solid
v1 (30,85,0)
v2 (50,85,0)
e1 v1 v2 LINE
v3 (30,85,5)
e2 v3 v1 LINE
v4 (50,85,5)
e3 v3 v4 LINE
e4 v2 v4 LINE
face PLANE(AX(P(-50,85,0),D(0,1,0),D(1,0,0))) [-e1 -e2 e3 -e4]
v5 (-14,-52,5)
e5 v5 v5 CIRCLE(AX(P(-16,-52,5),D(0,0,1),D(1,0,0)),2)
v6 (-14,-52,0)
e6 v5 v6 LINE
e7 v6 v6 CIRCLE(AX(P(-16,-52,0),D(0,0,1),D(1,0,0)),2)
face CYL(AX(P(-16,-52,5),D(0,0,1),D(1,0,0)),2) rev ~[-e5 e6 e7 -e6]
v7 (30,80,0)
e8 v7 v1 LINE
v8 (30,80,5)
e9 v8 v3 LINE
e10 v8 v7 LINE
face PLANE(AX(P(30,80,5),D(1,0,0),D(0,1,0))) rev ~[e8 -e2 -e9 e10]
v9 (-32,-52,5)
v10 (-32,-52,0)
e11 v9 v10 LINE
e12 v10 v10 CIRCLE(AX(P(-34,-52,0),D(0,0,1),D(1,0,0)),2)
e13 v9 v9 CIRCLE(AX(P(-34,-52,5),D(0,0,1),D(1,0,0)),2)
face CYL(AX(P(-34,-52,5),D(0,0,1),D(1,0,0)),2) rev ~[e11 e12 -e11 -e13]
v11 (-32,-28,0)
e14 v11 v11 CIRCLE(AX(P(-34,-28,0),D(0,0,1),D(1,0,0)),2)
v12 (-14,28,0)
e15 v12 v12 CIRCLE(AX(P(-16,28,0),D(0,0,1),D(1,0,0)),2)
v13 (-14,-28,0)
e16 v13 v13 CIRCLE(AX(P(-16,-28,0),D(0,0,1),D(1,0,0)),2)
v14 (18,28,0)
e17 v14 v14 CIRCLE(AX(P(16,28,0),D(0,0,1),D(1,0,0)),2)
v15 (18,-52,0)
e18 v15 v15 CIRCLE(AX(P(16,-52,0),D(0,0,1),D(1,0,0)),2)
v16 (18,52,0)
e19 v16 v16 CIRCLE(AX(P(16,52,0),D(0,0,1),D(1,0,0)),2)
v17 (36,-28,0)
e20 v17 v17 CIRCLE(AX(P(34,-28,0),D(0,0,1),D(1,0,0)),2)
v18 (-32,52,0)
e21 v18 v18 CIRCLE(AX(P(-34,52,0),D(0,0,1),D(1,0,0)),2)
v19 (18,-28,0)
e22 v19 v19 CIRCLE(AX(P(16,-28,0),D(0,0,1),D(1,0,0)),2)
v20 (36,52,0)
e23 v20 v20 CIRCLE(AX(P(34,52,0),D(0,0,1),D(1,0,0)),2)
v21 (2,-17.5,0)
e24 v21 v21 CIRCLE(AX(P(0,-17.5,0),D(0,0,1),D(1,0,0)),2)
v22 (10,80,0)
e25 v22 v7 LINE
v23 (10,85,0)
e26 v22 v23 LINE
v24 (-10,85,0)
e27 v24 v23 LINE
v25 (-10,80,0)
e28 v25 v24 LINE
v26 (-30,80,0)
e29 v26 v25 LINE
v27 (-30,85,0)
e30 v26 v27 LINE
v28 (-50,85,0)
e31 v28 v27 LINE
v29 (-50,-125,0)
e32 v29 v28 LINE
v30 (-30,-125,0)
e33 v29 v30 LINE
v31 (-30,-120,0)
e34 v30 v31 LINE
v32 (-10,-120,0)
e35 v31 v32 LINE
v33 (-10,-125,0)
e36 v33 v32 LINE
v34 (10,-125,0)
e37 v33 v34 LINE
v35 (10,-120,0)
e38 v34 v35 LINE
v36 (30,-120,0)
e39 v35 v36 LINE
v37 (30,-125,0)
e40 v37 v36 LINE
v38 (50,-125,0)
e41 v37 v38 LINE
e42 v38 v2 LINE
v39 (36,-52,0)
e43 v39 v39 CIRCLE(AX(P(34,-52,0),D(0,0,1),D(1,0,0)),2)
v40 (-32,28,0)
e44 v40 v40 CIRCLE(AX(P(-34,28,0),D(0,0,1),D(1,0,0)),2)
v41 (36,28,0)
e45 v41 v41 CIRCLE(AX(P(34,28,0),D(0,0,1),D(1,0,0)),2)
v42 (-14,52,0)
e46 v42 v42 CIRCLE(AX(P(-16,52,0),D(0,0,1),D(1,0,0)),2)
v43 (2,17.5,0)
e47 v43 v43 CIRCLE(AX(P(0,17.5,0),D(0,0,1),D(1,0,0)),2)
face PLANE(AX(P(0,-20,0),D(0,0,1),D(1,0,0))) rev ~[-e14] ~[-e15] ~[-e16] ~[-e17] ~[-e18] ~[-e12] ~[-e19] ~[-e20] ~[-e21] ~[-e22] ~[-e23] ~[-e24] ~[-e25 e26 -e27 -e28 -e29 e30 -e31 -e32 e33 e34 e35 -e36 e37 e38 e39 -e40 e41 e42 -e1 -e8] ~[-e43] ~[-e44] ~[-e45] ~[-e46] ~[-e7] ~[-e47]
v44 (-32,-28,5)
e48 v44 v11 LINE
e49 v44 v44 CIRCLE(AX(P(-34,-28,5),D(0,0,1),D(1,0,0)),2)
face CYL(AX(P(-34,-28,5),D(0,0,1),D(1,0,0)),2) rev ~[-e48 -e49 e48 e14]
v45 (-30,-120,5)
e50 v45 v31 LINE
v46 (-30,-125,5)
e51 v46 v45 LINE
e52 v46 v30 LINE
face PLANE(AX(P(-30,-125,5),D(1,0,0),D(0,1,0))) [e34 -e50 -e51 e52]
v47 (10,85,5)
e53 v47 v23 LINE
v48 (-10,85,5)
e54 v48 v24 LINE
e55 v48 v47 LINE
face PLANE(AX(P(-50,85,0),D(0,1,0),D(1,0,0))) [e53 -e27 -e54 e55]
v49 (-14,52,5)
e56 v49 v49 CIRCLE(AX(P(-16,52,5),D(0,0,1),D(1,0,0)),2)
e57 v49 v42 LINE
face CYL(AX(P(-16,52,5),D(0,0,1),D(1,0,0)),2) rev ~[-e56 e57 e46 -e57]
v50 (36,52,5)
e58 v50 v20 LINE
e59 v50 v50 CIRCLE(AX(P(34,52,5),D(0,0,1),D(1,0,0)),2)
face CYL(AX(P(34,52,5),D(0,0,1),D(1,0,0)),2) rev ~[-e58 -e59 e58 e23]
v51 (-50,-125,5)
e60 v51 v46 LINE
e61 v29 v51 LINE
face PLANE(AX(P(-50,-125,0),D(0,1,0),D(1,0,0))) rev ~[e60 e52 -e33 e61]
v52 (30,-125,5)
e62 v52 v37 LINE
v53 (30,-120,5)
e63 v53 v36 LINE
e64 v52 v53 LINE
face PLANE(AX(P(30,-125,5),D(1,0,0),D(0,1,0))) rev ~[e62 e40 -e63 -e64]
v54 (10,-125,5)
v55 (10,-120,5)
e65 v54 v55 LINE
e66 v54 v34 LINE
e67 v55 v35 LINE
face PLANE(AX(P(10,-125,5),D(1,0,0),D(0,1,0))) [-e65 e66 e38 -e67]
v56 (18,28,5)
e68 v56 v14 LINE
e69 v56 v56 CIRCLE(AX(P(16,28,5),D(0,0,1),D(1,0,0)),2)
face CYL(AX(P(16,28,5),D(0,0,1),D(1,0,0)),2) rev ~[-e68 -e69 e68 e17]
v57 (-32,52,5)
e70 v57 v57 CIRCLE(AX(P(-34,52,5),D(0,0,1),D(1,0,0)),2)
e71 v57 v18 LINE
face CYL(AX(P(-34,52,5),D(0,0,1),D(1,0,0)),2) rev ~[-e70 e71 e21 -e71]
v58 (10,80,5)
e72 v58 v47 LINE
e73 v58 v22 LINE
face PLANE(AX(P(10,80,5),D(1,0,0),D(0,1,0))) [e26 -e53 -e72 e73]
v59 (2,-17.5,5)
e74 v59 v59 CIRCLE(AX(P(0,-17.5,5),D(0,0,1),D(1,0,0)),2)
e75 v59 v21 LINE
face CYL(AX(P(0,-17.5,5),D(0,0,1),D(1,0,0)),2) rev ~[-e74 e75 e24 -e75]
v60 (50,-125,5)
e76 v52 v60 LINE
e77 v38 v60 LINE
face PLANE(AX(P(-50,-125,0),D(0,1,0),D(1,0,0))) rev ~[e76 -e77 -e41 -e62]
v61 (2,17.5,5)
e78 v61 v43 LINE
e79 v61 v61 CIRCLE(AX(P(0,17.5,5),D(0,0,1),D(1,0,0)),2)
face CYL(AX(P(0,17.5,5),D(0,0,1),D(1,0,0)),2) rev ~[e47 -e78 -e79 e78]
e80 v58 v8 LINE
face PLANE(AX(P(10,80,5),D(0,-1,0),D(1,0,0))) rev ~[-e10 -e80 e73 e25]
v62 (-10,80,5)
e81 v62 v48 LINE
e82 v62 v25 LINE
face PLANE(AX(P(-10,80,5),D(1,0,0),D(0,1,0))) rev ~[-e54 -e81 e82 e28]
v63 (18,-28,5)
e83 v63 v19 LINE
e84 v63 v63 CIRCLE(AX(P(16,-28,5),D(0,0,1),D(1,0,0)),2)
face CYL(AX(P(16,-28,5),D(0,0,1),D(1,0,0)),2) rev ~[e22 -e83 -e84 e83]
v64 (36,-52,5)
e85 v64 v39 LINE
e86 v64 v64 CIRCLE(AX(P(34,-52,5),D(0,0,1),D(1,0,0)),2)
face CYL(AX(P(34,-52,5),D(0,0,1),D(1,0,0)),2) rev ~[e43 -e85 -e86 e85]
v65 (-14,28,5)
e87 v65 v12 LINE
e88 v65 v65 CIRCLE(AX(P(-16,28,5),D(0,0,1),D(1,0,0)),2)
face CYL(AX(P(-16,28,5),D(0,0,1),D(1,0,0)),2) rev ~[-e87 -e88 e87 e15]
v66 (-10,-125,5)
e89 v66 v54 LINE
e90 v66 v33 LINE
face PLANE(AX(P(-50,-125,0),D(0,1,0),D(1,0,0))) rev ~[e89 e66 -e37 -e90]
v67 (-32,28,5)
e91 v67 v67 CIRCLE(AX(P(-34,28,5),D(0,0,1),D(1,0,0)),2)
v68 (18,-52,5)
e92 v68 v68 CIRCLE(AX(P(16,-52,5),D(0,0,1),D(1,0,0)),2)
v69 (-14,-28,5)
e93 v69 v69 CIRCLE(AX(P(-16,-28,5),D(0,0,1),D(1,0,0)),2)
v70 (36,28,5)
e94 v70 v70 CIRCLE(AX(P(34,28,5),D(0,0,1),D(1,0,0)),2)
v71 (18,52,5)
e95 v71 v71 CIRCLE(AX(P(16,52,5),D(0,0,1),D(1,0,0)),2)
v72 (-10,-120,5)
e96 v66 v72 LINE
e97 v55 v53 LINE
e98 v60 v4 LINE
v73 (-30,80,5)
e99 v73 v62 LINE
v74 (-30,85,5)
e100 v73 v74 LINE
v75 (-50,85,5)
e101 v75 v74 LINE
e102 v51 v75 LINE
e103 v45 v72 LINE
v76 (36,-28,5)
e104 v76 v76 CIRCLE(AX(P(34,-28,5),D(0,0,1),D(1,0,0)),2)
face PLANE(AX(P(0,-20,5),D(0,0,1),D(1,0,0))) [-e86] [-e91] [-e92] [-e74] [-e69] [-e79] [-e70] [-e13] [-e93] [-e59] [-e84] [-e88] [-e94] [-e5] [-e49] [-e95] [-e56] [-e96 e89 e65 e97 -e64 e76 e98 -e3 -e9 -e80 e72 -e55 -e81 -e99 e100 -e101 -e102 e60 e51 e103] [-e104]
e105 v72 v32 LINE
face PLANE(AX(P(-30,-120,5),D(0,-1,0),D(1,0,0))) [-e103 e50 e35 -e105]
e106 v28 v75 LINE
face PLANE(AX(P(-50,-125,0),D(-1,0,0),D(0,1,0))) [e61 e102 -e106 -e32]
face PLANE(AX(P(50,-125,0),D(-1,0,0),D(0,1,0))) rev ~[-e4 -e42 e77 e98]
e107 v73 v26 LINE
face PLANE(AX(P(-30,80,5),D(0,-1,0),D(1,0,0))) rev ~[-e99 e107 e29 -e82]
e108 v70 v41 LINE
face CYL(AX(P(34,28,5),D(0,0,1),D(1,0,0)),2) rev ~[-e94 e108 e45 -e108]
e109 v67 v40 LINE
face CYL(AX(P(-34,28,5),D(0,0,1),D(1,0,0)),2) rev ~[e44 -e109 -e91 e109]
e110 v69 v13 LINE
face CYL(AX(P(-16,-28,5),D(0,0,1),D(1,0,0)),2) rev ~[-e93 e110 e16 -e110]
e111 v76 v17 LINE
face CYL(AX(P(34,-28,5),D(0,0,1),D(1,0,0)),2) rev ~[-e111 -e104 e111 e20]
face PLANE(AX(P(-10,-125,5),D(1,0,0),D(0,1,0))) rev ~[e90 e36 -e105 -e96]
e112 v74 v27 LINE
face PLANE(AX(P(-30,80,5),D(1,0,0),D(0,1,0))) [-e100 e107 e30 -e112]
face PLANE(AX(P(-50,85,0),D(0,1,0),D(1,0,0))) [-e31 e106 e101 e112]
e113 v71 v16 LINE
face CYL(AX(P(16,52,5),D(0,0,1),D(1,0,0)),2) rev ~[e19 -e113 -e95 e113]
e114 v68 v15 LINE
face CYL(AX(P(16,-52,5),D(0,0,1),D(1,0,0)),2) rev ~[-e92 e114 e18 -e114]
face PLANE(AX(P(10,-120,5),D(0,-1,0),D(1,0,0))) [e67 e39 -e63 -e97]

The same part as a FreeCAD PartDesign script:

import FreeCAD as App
import Part
import Sketcher
Q = App.Units.Quantity

doc = App.newDocument("Part")
body = doc.addObject("PartDesign::Body", "Body")

sketch1 = body.newObject("Sketcher::SketchObject", "Sketch")
sketch1.AttachmentSupport = (doc.getObject("XY_Plane"), [""])
sketch1.MapMode = "FlatFace"
sketch1.addGeometry(Part.LineSegment(App.Vector(-50, 85, 0), App.Vector(-50, -125, 0)), False)
sketch1.addGeometry(Part.LineSegment(App.Vector(-50, -125, 0), App.Vector(50, -125, 0)), False)
sketch1.addGeometry(Part.LineSegment(App.Vector(50, -125, 0), App.Vector(50, 85, 0)), False)
sketch1.addGeometry(Part.LineSegment(App.Vector(50, 85, 0), App.Vector(-50, 85, 0)), False)
sketch1.addConstraint(Sketcher.Constraint("Coincident", 0, 2, 1, 1))
sketch1.addConstraint(Sketcher.Constraint("Coincident", 1, 2, 2, 1))
sketch1.addConstraint(Sketcher.Constraint("Coincident", 2, 2, 3, 1))
sketch1.addConstraint(Sketcher.Constraint("Coincident", 3, 2, 0, 1))
sketch1.addConstraint(Sketcher.Constraint("Vertical", 0))
sketch1.addConstraint(Sketcher.Constraint("Horizontal", 1))
sketch1.addConstraint(Sketcher.Constraint("Vertical", 2))
sketch1.addConstraint(Sketcher.Constraint("Horizontal", 3))
sketch1.addConstraint(Sketcher.Constraint("DistanceX", 1, 1, 1, 2, Q("100 mm")))
sketch1.addConstraint(Sketcher.Constraint("DistanceY", 0, 2, 0, 1, Q("210 mm")))
sketch1.addConstraint(Sketcher.Constraint("DistanceX", 0, 2, -1, 1, Q("50 mm")))
sketch1.addConstraint(Sketcher.Constraint("DistanceY", 0, 2, -1, 1, Q("125 mm")))
pad1 = body.newObject("PartDesign::Pad", "Pad")
pad1.Profile = sketch1
pad1.Length = 5

sketch2 = body.newObject("Sketcher::SketchObject", "Sketch001")
sketch2.AttachmentSupport = (doc.getObject("XY_Plane"), [""])
sketch2.MapMode = "FlatFace"
sketch2.AttachmentOffset = App.Placement(App.Vector(0, 0, 5), App.Rotation())
sketch2.addGeometry(Part.LineSegment(App.Vector(-30, 85, 0), App.Vector(-30, 80, 0)), False)
sketch2.addGeometry(Part.LineSegment(App.Vector(-30, 80, 0), App.Vector(-10, 80, 0)), False)
sketch2.addGeometry(Part.LineSegment(App.Vector(-10, 80, 0), App.Vector(-10, 85, 0)), False)
sketch2.addGeometry(Part.LineSegment(App.Vector(-10, 85, 0), App.Vector(-30, 85, 0)), False)
sketch2.addGeometry(Part.LineSegment(App.Vector(10, 85, 0), App.Vector(10, 80, 0)), False)
sketch2.addGeometry(Part.LineSegment(App.Vector(10, 80, 0), App.Vector(30, 80, 0)), False)
sketch2.addGeometry(Part.LineSegment(App.Vector(30, 80, 0), App.Vector(30, 85, 0)), False)
sketch2.addGeometry(Part.LineSegment(App.Vector(30, 85, 0), App.Vector(10, 85, 0)), False)
sketch2.addGeometry(Part.LineSegment(App.Vector(10, -120, 0), App.Vector(10, -125, 0)), False)
sketch2.addGeometry(Part.LineSegment(App.Vector(10, -125, 0), App.Vector(30, -125, 0)), False)
sketch2.addGeometry(Part.LineSegment(App.Vector(30, -125, 0), App.Vector(30, -120, 0)), False)
sketch2.addGeometry(Part.LineSegment(App.Vector(30, -120, 0), App.Vector(10, -120, 0)), False)
sketch2.addGeometry(Part.LineSegment(App.Vector(-30, -120, 0), App.Vector(-30, -125, 0)), False)
sketch2.addGeometry(Part.LineSegment(App.Vector(-30, -125, 0), App.Vector(-10, -125, 0)), False)
sketch2.addGeometry(Part.LineSegment(App.Vector(-10, -125, 0), App.Vector(-10, -120, 0)), False)
sketch2.addGeometry(Part.LineSegment(App.Vector(-10, -120, 0), App.Vector(-30, -120, 0)), False)
sketch2.addConstraint(Sketcher.Constraint("Coincident", 0, 2, 1, 1))
sketch2.addConstraint(Sketcher.Constraint("Coincident", 1, 2, 2, 1))
sketch2.addConstraint(Sketcher.Constraint("Coincident", 2, 2, 3, 1))
sketch2.addConstraint(Sketcher.Constraint("Coincident", 3, 2, 0, 1))
sketch2.addConstraint(Sketcher.Constraint("Coincident", 4, 2, 5, 1))
sketch2.addConstraint(Sketcher.Constraint("Coincident", 5, 2, 6, 1))
sketch2.addConstraint(Sketcher.Constraint("Coincident", 6, 2, 7, 1))
sketch2.addConstraint(Sketcher.Constraint("Coincident", 7, 2, 4, 1))
sketch2.addConstraint(Sketcher.Constraint("Coincident", 8, 2, 9, 1))
sketch2.addConstraint(Sketcher.Constraint("Coincident", 9, 2, 10, 1))
sketch2.addConstraint(Sketcher.Constraint("Coincident", 10, 2, 11, 1))
sketch2.addConstraint(Sketcher.Constraint("Coincident", 11, 2, 8, 1))
sketch2.addConstraint(Sketcher.Constraint("Coincident", 12, 2, 13, 1))
sketch2.addConstraint(Sketcher.Constraint("Coincident", 13, 2, 14, 1))
sketch2.addConstraint(Sketcher.Constraint("Coincident", 14, 2, 15, 1))
sketch2.addConstraint(Sketcher.Constraint("Coincident", 15, 2, 12, 1))
sketch2.addConstraint(Sketcher.Constraint("Vertical", 0))
sketch2.addConstraint(Sketcher.Constraint("Horizontal", 1))
sketch2.addConstraint(Sketcher.Constraint("Vertical", 2))
sketch2.addConstraint(Sketcher.Constraint("Horizontal", 3))
sketch2.addConstraint(Sketcher.Constraint("Vertical", 4))
sketch2.addConstraint(Sketcher.Constraint("Horizontal", 5))
sketch2.addConstraint(Sketcher.Constraint("Vertical", 6))
sketch2.addConstraint(Sketcher.Constraint("Horizontal", 7))
sketch2.addConstraint(Sketcher.Constraint("Vertical", 8))
sketch2.addConstraint(Sketcher.Constraint("Horizontal", 9))
sketch2.addConstraint(Sketcher.Constraint("Vertical", 10))
sketch2.addConstraint(Sketcher.Constraint("Horizontal", 11))
sketch2.addConstraint(Sketcher.Constraint("Vertical", 12))
sketch2.addConstraint(Sketcher.Constraint("Horizontal", 13))
sketch2.addConstraint(Sketcher.Constraint("Vertical", 14))
sketch2.addConstraint(Sketcher.Constraint("Horizontal", 15))
sketch2.addConstraint(Sketcher.Constraint("Symmetric", 1, 2, 4, 2, -2))
sketch2.addConstraint(Sketcher.Constraint("Symmetric", 3, 2, 6, 2, -2))
sketch2.addConstraint(Sketcher.Constraint("Symmetric", 9, 2, 12, 2, -2))
sketch2.addConstraint(Sketcher.Constraint("Symmetric", 11, 2, 14, 2, -2))
sketch2.addConstraint(Sketcher.Constraint("Vertical", 7, 2, 8, 2))
sketch2.addConstraint(Sketcher.Constraint("Vertical", 6, 2, 9, 2))
sketch2.addConstraint(Sketcher.Constraint("Equal", 6, 8))
sketch2.addConstraint(Sketcher.Constraint("DistanceX", 1, 1, 1, 2, Q("20 mm")))
sketch2.addConstraint(Sketcher.Constraint("DistanceY", 0, 2, 0, 1, Q("5 mm")))
sketch2.addConstraint(Sketcher.Constraint("DistanceX", 0, 2, -1, 1, Q("30 mm")))
sketch2.addConstraint(Sketcher.Constraint("DistanceY", -1, 1, 0, 2, Q("80 mm")))
sketch2.addConstraint(Sketcher.Constraint("DistanceY", 8, 2, -1, 1, Q("125 mm")))
pocket1 = body.newObject("PartDesign::Pocket", "Pocket")
pocket1.Profile = sketch2
pocket1.Length = 10

sketch3 = body.newObject("Sketcher::SketchObject", "Sketch002")
sketch3.AttachmentSupport = (doc.getObject("XY_Plane"), [""])
sketch3.MapMode = "FlatFace"
sketch3.AttachmentOffset = App.Placement(App.Vector(0, 0, 5), App.Rotation())
sketch3.addGeometry(Part.Circle(App.Vector(34, 52, 0), App.Vector(0, 0, 1), 2), False)
sketch3.addGeometry(Part.Circle(App.Vector(16, 52, 0), App.Vector(0, 0, 1), 2), False)
sketch3.addGeometry(Part.Circle(App.Vector(16, 28, 0), App.Vector(0, 0, 1), 2), False)
sketch3.addGeometry(Part.Circle(App.Vector(34, 28, 0), App.Vector(0, 0, 1), 2), False)
sketch3.addGeometry(Part.Circle(App.Vector(-16, 28, 0), App.Vector(0, 0, 1), 2), False)
sketch3.addGeometry(Part.Circle(App.Vector(-34, 28, 0), App.Vector(0, 0, 1), 2), False)
sketch3.addGeometry(Part.Circle(App.Vector(-34, 52, 0), App.Vector(0, 0, 1), 2), False)
sketch3.addGeometry(Part.Circle(App.Vector(-16, 52, 0), App.Vector(0, 0, 1), 2), False)
sketch3.addGeometry(Part.Circle(App.Vector(-16, -52, 0), App.Vector(0, 0, 1), 2), False)
sketch3.addGeometry(Part.Circle(App.Vector(-34, -52, 0), App.Vector(0, 0, 1), 2), False)
sketch3.addGeometry(Part.Circle(App.Vector(-34, -28, 0), App.Vector(0, 0, 1), 2), False)
sketch3.addGeometry(Part.Circle(App.Vector(-16, -28, 0), App.Vector(0, 0, 1), 2), False)
sketch3.addGeometry(Part.Circle(App.Vector(16, -28, 0), App.Vector(0, 0, 1), 2), False)
sketch3.addGeometry(Part.Circle(App.Vector(34, -28, 0), App.Vector(0, 0, 1), 2), False)
sketch3.addGeometry(Part.Circle(App.Vector(34, -52, 0), App.Vector(0, 0, 1), 2), False)
sketch3.addGeometry(Part.Circle(App.Vector(16, -52, 0), App.Vector(0, 0, 1), 2), False)
sketch3.addConstraint(Sketcher.Constraint("Equal", 0, 1))
sketch3.addConstraint(Sketcher.Constraint("Equal", 1, 2))
sketch3.addConstraint(Sketcher.Constraint("Equal", 2, 3))
sketch3.addConstraint(Sketcher.Constraint("Equal", 3, 4))
sketch3.addConstraint(Sketcher.Constraint("Equal", 4, 5))
sketch3.addConstraint(Sketcher.Constraint("Equal", 5, 6))
sketch3.addConstraint(Sketcher.Constraint("Equal", 6, 7))
sketch3.addConstraint(Sketcher.Constraint("Equal", 7, 8))
sketch3.addConstraint(Sketcher.Constraint("Equal", 8, 9))
sketch3.addConstraint(Sketcher.Constraint("Equal", 9, 10))
sketch3.addConstraint(Sketcher.Constraint("Equal", 10, 11))
sketch3.addConstraint(Sketcher.Constraint("Equal", 11, 12))
sketch3.addConstraint(Sketcher.Constraint("Equal", 12, 13))
sketch3.addConstraint(Sketcher.Constraint("Equal", 13, 14))
sketch3.addConstraint(Sketcher.Constraint("Equal", 14, 15))
sketch3.addConstraint(Sketcher.Constraint("Symmetric", 1, 3, 8, 3, -1, 1))
sketch3.addConstraint(Sketcher.Constraint("Symmetric", 0, 3, 9, 3, -1, 1))
sketch3.addConstraint(Sketcher.Constraint("Symmetric", 3, 3, 10, 3, -1, 1))
sketch3.addConstraint(Sketcher.Constraint("Symmetric", 2, 3, 11, 3, -1, 1))
sketch3.addConstraint(Sketcher.Constraint("Symmetric", 4, 3, 12, 3, -1, 1))
sketch3.addConstraint(Sketcher.Constraint("Symmetric", 5, 3, 13, 3, -1, 1))
sketch3.addConstraint(Sketcher.Constraint("Symmetric", 6, 3, 14, 3, -1, 1))
sketch3.addConstraint(Sketcher.Constraint("Symmetric", 7, 3, 15, 3, -1, 1))
sketch3.addConstraint(Sketcher.Constraint("Symmetric", 2, 3, 4, 3, -2))
sketch3.addConstraint(Sketcher.Constraint("Symmetric", 3, 3, 5, 3, -2))
sketch3.addConstraint(Sketcher.Constraint("Symmetric", 0, 3, 6, 3, -2))
sketch3.addConstraint(Sketcher.Constraint("Symmetric", 1, 3, 7, 3, -2))
sketch3.addConstraint(Sketcher.Constraint("Horizontal", 0, 3, 1, 3))
sketch3.addConstraint(Sketcher.Constraint("Horizontal", 2, 3, 3, 3))
sketch3.addConstraint(Sketcher.Constraint("Vertical", 1, 3, 2, 3))
sketch3.addConstraint(Sketcher.Constraint("Vertical", 0, 3, 3, 3))
sketch3.addConstraint(Sketcher.Constraint("Diameter", 0, Q("4 mm")))
sketch3.addConstraint(Sketcher.Constraint("DistanceX", -1, 1, 0, 3, Q("34 mm")))
sketch3.addConstraint(Sketcher.Constraint("DistanceY", -1, 1, 0, 3, Q("52 mm")))
sketch3.addConstraint(Sketcher.Constraint("DistanceX", -1, 1, 1, 3, Q("16 mm")))
sketch3.addConstraint(Sketcher.Constraint("DistanceY", -1, 1, 2, 3, Q("28 mm")))
pocket2 = body.newObject("PartDesign::Pocket", "Pocket001")
pocket2.Profile = sketch3
pocket2.Type = "ThroughAll"

sketch4 = body.newObject("Sketcher::SketchObject", "Sketch003")
sketch4.AttachmentSupport = (doc.getObject("XY_Plane"), [""])
sketch4.MapMode = "FlatFace"
sketch4.AttachmentOffset = App.Placement(App.Vector(0, 0, 5), App.Rotation())
sketch4.addGeometry(Part.Circle(App.Vector(0, 17.5, 0), App.Vector(0, 0, 1), 2), False)
sketch4.addGeometry(Part.Circle(App.Vector(0, -17.5, 0), App.Vector(0, 0, 1), 2), False)
sketch4.addConstraint(Sketcher.Constraint("Equal", 0, 1))
sketch4.addConstraint(Sketcher.Constraint("Symmetric", 0, 3, 1, 3, -1, 1))
sketch4.addConstraint(Sketcher.Constraint("PointOnObject", 0, 3, -2))
sketch4.addConstraint(Sketcher.Constraint("Diameter", 0, Q("4 mm")))
sketch4.addConstraint(Sketcher.Constraint("DistanceY", 1, 3, 0, 3, Q("35 mm")))
pocket3 = body.newObject("PartDesign::Pocket", "Pocket002")
pocket3.Profile = sketch4
pocket3.Length = 10

doc.recompute()
